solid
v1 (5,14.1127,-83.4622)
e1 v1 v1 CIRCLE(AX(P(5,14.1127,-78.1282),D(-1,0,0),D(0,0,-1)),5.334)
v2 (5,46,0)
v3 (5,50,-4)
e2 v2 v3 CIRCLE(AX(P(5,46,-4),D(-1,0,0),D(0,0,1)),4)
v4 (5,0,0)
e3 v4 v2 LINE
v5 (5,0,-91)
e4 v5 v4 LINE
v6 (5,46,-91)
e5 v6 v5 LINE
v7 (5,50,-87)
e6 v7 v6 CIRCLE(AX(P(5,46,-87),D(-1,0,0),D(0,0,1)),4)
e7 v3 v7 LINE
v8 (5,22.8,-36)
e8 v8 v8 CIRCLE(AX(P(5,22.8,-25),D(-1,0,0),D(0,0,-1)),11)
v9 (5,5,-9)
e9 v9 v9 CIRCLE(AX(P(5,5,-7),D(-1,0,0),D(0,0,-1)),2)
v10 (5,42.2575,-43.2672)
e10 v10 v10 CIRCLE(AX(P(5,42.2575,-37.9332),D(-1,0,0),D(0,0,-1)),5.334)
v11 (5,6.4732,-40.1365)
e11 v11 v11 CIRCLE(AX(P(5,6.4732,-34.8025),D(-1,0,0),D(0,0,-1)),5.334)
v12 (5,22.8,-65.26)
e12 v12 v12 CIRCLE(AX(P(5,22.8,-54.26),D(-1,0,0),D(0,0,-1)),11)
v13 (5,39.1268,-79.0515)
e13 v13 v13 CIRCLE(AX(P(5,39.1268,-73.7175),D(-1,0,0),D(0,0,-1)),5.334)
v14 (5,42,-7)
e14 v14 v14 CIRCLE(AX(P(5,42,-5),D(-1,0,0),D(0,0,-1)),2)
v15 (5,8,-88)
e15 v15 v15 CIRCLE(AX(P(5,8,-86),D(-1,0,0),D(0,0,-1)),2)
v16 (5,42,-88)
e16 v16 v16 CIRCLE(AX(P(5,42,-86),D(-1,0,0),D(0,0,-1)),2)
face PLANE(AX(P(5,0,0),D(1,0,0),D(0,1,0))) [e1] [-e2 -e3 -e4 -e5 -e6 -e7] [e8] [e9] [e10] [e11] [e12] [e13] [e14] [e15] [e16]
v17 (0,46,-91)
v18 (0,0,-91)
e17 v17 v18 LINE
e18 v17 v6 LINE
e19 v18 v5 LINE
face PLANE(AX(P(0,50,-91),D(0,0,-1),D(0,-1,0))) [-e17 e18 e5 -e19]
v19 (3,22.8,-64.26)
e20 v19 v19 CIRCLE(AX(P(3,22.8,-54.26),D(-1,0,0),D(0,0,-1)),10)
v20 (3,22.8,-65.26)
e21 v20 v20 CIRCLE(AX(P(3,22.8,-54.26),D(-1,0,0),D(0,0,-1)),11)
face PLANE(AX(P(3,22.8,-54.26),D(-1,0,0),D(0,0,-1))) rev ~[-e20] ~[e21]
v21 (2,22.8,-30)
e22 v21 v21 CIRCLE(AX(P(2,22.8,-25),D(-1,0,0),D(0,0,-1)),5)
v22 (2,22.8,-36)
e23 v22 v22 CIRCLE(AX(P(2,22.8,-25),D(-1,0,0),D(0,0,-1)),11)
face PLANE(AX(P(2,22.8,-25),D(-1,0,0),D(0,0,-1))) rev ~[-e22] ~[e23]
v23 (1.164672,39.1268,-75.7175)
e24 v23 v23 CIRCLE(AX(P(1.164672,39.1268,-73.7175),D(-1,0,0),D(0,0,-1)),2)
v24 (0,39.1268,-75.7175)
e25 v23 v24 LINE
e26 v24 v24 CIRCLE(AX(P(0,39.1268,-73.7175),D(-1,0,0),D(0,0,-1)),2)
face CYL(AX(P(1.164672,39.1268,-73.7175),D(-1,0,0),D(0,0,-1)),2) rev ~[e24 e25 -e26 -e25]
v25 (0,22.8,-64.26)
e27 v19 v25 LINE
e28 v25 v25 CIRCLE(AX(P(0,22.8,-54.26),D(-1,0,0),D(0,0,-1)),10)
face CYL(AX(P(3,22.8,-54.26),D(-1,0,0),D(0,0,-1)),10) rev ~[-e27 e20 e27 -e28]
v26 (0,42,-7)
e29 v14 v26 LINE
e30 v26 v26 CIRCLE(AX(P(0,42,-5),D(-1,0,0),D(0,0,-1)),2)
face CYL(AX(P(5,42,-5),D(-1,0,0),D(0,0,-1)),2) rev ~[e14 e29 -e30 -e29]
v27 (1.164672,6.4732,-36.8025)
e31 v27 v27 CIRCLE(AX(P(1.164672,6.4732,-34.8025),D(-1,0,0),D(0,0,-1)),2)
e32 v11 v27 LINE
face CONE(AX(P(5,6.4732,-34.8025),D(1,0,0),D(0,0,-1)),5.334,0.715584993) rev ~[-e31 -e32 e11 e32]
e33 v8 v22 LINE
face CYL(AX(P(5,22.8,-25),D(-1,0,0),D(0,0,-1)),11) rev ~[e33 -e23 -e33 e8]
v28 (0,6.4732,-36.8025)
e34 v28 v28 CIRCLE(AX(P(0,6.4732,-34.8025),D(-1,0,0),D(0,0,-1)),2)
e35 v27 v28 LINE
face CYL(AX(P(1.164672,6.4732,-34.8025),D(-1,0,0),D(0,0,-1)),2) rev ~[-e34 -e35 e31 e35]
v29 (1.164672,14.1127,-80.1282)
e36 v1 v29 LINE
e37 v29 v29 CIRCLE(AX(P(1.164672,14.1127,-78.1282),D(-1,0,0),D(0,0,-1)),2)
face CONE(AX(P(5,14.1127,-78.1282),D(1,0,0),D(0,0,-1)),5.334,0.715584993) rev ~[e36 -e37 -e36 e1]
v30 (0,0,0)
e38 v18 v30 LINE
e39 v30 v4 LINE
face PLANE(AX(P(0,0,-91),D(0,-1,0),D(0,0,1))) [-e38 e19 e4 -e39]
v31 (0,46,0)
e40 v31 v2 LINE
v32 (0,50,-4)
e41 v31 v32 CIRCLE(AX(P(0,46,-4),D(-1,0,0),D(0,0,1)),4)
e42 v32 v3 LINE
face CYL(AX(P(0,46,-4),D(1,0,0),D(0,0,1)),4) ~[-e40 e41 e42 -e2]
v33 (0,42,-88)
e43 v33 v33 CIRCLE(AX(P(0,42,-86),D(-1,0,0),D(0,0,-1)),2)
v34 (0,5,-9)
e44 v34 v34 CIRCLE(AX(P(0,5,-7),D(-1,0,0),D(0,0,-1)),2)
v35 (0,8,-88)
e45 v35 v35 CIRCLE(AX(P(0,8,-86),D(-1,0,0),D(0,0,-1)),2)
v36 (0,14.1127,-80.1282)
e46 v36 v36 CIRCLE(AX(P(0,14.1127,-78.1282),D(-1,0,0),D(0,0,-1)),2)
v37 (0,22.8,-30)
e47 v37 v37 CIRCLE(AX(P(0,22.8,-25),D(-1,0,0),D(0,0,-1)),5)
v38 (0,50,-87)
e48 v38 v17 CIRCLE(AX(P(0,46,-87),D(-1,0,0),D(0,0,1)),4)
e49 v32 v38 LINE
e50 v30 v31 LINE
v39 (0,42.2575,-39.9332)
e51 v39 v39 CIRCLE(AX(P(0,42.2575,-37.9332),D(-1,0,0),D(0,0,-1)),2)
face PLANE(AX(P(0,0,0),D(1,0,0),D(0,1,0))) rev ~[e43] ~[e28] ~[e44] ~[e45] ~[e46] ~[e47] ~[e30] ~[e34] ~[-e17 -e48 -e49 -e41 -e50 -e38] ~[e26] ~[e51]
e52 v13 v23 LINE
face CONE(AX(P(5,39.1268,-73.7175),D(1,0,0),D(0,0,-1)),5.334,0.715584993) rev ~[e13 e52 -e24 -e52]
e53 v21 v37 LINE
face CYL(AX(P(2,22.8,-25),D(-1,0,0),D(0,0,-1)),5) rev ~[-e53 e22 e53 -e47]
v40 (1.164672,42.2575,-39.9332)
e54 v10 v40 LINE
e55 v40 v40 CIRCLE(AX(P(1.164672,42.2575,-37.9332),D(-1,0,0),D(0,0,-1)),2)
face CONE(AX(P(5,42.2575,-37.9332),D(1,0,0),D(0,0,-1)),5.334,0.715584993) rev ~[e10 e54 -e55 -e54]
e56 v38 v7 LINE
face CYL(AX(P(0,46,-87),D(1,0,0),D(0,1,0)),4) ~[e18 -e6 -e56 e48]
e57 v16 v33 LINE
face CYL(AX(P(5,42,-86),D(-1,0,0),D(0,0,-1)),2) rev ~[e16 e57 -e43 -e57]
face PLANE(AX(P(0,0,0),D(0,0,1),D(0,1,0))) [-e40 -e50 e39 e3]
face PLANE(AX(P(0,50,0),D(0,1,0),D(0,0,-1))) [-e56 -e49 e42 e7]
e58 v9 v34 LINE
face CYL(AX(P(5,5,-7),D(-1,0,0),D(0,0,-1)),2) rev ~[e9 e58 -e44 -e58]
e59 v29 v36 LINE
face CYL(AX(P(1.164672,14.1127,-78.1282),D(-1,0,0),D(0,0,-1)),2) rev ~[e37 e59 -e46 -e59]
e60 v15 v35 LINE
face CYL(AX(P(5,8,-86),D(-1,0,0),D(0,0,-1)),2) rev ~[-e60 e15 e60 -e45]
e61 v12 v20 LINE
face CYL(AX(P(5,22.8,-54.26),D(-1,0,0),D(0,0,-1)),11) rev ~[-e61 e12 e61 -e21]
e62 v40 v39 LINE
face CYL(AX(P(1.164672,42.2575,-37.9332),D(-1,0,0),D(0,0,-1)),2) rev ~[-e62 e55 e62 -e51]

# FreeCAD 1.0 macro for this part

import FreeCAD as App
import Part
import Sketcher
from FreeCAD import Vector
Q = App.Units.Quantity


def edges_at(feature, points):
    """Names of the edges that pass closest to the given points."""
    edges = feature.Shape.Edges
    near = lambda p: min(range(len(edges)), key=lambda i: edges[i].distToShape(Part.Vertex(*p))[0])
    return sorted({f"Edge{near(p) + 1}" for p in points})

doc = App.newDocument("Part")
body = doc.addObject("PartDesign::Body", "Body")

sketch1 = body.newObject("Sketcher::SketchObject", "Sketch")
sketch1.AttachmentSupport = (doc.getObject("YZ_Plane"), [""])
sketch1.MapMode = "FlatFace"
sketch1.addGeometry([
    Part.LineSegment(Vector(50, 0, 0), Vector(0, 0, 0)),
    Part.LineSegment(Vector(0, 0, 0), Vector(0, -91, 0)),
    Part.LineSegment(Vector(0, -91, 0), Vector(50, -91, 0)),
    Part.LineSegment(Vector(50, -91, 0), Vector(50, 0, 0)),
], False)
sketch1.addConstraint([
    Sketcher.Constraint("Coincident", 0, 2, 1, 1),
    Sketcher.Constraint("Coincident", 1, 2, 2, 1),
    Sketcher.Constraint("Coincident", 2, 2, 3, 1),
    Sketcher.Constraint("Coincident", 3, 2, 0, 1),
    Sketcher.Constraint("Horizontal", 0),
    Sketcher.Constraint("Vertical", 1),
    Sketcher.Constraint("Horizontal", 2),
    Sketcher.Constraint("Vertical", 3),
    Sketcher.Constraint("Coincident", 0, 2, -1, 1),
    Sketcher.Constraint("DistanceX", 0, 2, 0, 1, Q("50 mm")),
    Sketcher.Constraint("DistanceY", 1, 2, 1, 1, Q("91 mm")),
])
pad1 = body.newObject("PartDesign::Pad", "Pad")
pad1.Profile = sketch1
pad1.Length = 5

sketch2 = body.newObject("Sketcher::SketchObject", "Sketch001")
sketch2.AttachmentSupport = (doc.getObject("YZ_Plane"), [""])
sketch2.MapMode = "FlatFace"
sketch2.AttachmentOffset = App.Placement(Vector(0, 0, 5), App.Rotation())
sketch2.addGeometry(Part.Circle(Vector(22.8, -25, 0), Vector(0, 0, 1), 5), False)
sketch2.addConstraint([
    Sketcher.Constraint("Diameter", 0, Q("10 mm")),
    Sketcher.Constraint("DistanceY", 0, 3, -1, 1, Q("25 mm")),
    Sketcher.Constraint("DistanceX", -1, 1, 0, 3, Q("22.8 mm")),
])
doc.recompute()
hole = body.newObject("PartDesign::Hole", "Hole")
hole.Profile = sketch2
hole.ThreadType = "None"
hole.Diameter = 10
hole.DepthType = "ThroughAll"
hole.HoleCutType = "Counterbore"
hole.HoleCutDiameter = 22
hole.HoleCutDepth = 3

sketch3 = body.newObject("Sketcher::SketchObject", "Sketch002")
sketch3.AttachmentSupport = (doc.getObject("YZ_Plane"), [""])
sketch3.MapMode = "FlatFace"
sketch3.AttachmentOffset = App.Placement(Vector(0, 0, 5), App.Rotation())
sketch3.addGeometry(Part.Circle(Vector(22.8, -54.26, 0), Vector(0, 0, 1), 10), False)
sketch3.addConstraint([
    Sketcher.Constraint("Diameter", 0, Q("20 mm")),
    Sketcher.Constraint("DistanceX", -1, 1, 0, 3, Q("22.8 mm")),
    Sketcher.Constraint("DistanceY", 0, 3, -1, 1, Q("54.26 mm")),
])
doc.recompute()
hole2 = body.newObject("PartDesign::Hole", "Hole001")
hole2.Profile = sketch3
hole2.ThreadType = "None"
hole2.Diameter = 20
hole2.DepthType = "ThroughAll"
hole2.HoleCutType = "Counterbore"
hole2.HoleCutDiameter = 22
hole2.HoleCutDepth = 2

sketch4 = body.newObject("Sketcher::SketchObject", "Sketch003")
sketch4.AttachmentSupport = (doc.getObject("YZ_Plane"), [""])
sketch4.MapMode = "FlatFace"
sketch4.AttachmentOffset = App.Placement(Vector(0, 0, 5), App.Rotation())
sketch4.addGeometry([
    Part.Circle(Vector(39.1268, -73.7175, 0), Vector(0, 0, 1), 2),
    Part.Circle(Vector(6.4732, -34.8025, 0), Vector(0, 0, 1), 2),
    Part.Circle(Vector(14.1127, -78.1282, 0), Vector(0, 0, 1), 2),
], False)
sketch4.addConstraint([
    Sketcher.Constraint("Equal", 0, 1),
    Sketcher.Constraint("Equal", 1, 2),
    Sketcher.Constraint("Diameter", 0, Q("4 mm")),
    Sketcher.Constraint("DistanceY", 0, 3, 1, 3, Q("38.915 mm")),
    Sketcher.Constraint("DistanceX", 2, 3, 0, 3, Q("25.014 mm")),
    Sketcher.Constraint("DistanceX", -1, 1, 0, 3, Q("39.1268 mm")),
    Sketcher.Constraint("DistanceY", 0, 3, -1, 1, Q("73.7175 mm")),
    Sketcher.Constraint("DistanceX", -1, 1, 1, 3, Q("6.4732 mm")),
    Sketcher.Constraint("DistanceY", 2, 3, -1, 1, Q("78.1282 mm")),
])
doc.recompute()
hole3 = body.newObject("PartDesign::Hole", "Hole002")
hole3.Profile = sketch4
hole3.ThreadType = "None"
hole3.Diameter = 4
hole3.DepthType = "ThroughAll"
hole3.HoleCutType = "Countersink"
hole3.HoleCutDiameter = 10.668
hole3.HoleCutCountersinkAngle = 82
doc.recompute()

fillet = body.newObject("PartDesign::Fillet", "Fillet")
fillet.Base = (hole3, edges_at(hole3, [(2.5, 50, 0), (2.5, 50, -91)]))
fillet.Radius = 4

sketch5 = body.newObject("Sketcher::SketchObject", "Sketch004")
sketch5.AttachmentSupport = (doc.getObject("YZ_Plane"), [""])
sketch5.MapMode = "FlatFace"
sketch5.AttachmentOffset = App.Placement(Vector(0, 0, 5), App.Rotation())
sketch5.addGeometry([
    Part.Circle(Vector(42, -5, 0), Vector(0, 0, 1), 2),
    Part.Circle(Vector(42, -86, 0), Vector(0, 0, 1), 2),
    Part.Circle(Vector(8, -86, 0), Vector(0, 0, 1), 2),
    Part.Circle(Vector(5, -7, 0), Vector(0, 0, 1), 2),
], False)
sketch5.addConstraint([
    Sketcher.Constraint("Equal", 0, 1),
    Sketcher.Constraint("Equal", 1, 2),
    Sketcher.Constraint("Equal", 2, 3),
    Sketcher.Constraint("Horizontal", 1, 3, 2, 3),
    Sketcher.Constraint("Vertical", 0, 3, 1, 3),
    Sketcher.Constraint("Diameter", 0, Q("4 mm")),
    Sketcher.Constraint("DistanceX", -1, 1, 0, 3, Q("42 mm")),
    Sketcher.Constraint("DistanceY", 0, 3, -1, 1, Q("5 mm")),
    Sketcher.Constraint("DistanceY", 1, 3, -1, 1, Q("86 mm")),
    Sketcher.Constraint("DistanceX", -1, 1, 2, 3, Q("8 mm")),
    Sketcher.Constraint("DistanceX", -1, 1, 3, 3, Q("5 mm")),
    Sketcher.Constraint("DistanceY", 3, 3, -1, 1, Q("7 mm")),
])
doc.recompute()
hole4 = body.newObject("PartDesign::Hole", "Hole003")
hole4.Profile = sketch5
hole4.ThreadType = "None"
hole4.Diameter = 4
hole4.DepthType = "ThroughAll"

sketch6 = body.newObject("Sketcher::SketchObject", "Sketch005")
sketch6.AttachmentSupport = (doc.getObject("YZ_Plane"), [""])
sketch6.MapMode = "FlatFace"
sketch6.AttachmentOffset = App.Placement(Vector(0, 0, 5), App.Rotation())
sketch6.addGeometry([
    Part.Circle(Vector(42.2575, -37.9332, 0), Vector(0, 0, 1), 2),
    Part.Circle(Vector(39.1268, -73.7175, 0), Vector(0, 0, 1), 2),
    Part.Circle(Vector(6.4732, -34.8025, 0), Vector(0, 0, 1), 2),
], False)
sketch6.addConstraint([
    Sketcher.Constraint("Equal", 0, 1),
    Sketcher.Constraint("Equal", 1, 2),
    Sketcher.Constraint("Diameter", 0, Q("4 mm")),
    Sketcher.Constraint("DistanceY", 1, 3, 2, 3, Q("38.915 mm")),
    Sketcher.Constraint("DistanceX", -1, 1, 0, 3, Q("42.2575 mm")),
    Sketcher.Constraint("DistanceY", 0, 3, -1, 1, Q("37.9332 mm")),
    Sketcher.Constraint("DistanceX", -1, 1, 1, 3, Q("39.1268 mm")),
    Sketcher.Constraint("DistanceY", 1, 3, -1, 1, Q("73.7175 mm")),
    Sketcher.Constraint("DistanceX", -1, 1, 2, 3, Q("6.4732 mm")),
])
doc.recompute()
hole5 = body.newObject("PartDesign::Hole", "Hole004")
hole5.Profile = sketch6
hole5.ThreadType = "None"
hole5.Diameter = 4
hole5.DepthType = "ThroughAll"
hole5.HoleCutType = "Countersink"
hole5.HoleCutDiameter = 10.668
hole5.HoleCutCountersinkAngle = 82

doc.recompute()
